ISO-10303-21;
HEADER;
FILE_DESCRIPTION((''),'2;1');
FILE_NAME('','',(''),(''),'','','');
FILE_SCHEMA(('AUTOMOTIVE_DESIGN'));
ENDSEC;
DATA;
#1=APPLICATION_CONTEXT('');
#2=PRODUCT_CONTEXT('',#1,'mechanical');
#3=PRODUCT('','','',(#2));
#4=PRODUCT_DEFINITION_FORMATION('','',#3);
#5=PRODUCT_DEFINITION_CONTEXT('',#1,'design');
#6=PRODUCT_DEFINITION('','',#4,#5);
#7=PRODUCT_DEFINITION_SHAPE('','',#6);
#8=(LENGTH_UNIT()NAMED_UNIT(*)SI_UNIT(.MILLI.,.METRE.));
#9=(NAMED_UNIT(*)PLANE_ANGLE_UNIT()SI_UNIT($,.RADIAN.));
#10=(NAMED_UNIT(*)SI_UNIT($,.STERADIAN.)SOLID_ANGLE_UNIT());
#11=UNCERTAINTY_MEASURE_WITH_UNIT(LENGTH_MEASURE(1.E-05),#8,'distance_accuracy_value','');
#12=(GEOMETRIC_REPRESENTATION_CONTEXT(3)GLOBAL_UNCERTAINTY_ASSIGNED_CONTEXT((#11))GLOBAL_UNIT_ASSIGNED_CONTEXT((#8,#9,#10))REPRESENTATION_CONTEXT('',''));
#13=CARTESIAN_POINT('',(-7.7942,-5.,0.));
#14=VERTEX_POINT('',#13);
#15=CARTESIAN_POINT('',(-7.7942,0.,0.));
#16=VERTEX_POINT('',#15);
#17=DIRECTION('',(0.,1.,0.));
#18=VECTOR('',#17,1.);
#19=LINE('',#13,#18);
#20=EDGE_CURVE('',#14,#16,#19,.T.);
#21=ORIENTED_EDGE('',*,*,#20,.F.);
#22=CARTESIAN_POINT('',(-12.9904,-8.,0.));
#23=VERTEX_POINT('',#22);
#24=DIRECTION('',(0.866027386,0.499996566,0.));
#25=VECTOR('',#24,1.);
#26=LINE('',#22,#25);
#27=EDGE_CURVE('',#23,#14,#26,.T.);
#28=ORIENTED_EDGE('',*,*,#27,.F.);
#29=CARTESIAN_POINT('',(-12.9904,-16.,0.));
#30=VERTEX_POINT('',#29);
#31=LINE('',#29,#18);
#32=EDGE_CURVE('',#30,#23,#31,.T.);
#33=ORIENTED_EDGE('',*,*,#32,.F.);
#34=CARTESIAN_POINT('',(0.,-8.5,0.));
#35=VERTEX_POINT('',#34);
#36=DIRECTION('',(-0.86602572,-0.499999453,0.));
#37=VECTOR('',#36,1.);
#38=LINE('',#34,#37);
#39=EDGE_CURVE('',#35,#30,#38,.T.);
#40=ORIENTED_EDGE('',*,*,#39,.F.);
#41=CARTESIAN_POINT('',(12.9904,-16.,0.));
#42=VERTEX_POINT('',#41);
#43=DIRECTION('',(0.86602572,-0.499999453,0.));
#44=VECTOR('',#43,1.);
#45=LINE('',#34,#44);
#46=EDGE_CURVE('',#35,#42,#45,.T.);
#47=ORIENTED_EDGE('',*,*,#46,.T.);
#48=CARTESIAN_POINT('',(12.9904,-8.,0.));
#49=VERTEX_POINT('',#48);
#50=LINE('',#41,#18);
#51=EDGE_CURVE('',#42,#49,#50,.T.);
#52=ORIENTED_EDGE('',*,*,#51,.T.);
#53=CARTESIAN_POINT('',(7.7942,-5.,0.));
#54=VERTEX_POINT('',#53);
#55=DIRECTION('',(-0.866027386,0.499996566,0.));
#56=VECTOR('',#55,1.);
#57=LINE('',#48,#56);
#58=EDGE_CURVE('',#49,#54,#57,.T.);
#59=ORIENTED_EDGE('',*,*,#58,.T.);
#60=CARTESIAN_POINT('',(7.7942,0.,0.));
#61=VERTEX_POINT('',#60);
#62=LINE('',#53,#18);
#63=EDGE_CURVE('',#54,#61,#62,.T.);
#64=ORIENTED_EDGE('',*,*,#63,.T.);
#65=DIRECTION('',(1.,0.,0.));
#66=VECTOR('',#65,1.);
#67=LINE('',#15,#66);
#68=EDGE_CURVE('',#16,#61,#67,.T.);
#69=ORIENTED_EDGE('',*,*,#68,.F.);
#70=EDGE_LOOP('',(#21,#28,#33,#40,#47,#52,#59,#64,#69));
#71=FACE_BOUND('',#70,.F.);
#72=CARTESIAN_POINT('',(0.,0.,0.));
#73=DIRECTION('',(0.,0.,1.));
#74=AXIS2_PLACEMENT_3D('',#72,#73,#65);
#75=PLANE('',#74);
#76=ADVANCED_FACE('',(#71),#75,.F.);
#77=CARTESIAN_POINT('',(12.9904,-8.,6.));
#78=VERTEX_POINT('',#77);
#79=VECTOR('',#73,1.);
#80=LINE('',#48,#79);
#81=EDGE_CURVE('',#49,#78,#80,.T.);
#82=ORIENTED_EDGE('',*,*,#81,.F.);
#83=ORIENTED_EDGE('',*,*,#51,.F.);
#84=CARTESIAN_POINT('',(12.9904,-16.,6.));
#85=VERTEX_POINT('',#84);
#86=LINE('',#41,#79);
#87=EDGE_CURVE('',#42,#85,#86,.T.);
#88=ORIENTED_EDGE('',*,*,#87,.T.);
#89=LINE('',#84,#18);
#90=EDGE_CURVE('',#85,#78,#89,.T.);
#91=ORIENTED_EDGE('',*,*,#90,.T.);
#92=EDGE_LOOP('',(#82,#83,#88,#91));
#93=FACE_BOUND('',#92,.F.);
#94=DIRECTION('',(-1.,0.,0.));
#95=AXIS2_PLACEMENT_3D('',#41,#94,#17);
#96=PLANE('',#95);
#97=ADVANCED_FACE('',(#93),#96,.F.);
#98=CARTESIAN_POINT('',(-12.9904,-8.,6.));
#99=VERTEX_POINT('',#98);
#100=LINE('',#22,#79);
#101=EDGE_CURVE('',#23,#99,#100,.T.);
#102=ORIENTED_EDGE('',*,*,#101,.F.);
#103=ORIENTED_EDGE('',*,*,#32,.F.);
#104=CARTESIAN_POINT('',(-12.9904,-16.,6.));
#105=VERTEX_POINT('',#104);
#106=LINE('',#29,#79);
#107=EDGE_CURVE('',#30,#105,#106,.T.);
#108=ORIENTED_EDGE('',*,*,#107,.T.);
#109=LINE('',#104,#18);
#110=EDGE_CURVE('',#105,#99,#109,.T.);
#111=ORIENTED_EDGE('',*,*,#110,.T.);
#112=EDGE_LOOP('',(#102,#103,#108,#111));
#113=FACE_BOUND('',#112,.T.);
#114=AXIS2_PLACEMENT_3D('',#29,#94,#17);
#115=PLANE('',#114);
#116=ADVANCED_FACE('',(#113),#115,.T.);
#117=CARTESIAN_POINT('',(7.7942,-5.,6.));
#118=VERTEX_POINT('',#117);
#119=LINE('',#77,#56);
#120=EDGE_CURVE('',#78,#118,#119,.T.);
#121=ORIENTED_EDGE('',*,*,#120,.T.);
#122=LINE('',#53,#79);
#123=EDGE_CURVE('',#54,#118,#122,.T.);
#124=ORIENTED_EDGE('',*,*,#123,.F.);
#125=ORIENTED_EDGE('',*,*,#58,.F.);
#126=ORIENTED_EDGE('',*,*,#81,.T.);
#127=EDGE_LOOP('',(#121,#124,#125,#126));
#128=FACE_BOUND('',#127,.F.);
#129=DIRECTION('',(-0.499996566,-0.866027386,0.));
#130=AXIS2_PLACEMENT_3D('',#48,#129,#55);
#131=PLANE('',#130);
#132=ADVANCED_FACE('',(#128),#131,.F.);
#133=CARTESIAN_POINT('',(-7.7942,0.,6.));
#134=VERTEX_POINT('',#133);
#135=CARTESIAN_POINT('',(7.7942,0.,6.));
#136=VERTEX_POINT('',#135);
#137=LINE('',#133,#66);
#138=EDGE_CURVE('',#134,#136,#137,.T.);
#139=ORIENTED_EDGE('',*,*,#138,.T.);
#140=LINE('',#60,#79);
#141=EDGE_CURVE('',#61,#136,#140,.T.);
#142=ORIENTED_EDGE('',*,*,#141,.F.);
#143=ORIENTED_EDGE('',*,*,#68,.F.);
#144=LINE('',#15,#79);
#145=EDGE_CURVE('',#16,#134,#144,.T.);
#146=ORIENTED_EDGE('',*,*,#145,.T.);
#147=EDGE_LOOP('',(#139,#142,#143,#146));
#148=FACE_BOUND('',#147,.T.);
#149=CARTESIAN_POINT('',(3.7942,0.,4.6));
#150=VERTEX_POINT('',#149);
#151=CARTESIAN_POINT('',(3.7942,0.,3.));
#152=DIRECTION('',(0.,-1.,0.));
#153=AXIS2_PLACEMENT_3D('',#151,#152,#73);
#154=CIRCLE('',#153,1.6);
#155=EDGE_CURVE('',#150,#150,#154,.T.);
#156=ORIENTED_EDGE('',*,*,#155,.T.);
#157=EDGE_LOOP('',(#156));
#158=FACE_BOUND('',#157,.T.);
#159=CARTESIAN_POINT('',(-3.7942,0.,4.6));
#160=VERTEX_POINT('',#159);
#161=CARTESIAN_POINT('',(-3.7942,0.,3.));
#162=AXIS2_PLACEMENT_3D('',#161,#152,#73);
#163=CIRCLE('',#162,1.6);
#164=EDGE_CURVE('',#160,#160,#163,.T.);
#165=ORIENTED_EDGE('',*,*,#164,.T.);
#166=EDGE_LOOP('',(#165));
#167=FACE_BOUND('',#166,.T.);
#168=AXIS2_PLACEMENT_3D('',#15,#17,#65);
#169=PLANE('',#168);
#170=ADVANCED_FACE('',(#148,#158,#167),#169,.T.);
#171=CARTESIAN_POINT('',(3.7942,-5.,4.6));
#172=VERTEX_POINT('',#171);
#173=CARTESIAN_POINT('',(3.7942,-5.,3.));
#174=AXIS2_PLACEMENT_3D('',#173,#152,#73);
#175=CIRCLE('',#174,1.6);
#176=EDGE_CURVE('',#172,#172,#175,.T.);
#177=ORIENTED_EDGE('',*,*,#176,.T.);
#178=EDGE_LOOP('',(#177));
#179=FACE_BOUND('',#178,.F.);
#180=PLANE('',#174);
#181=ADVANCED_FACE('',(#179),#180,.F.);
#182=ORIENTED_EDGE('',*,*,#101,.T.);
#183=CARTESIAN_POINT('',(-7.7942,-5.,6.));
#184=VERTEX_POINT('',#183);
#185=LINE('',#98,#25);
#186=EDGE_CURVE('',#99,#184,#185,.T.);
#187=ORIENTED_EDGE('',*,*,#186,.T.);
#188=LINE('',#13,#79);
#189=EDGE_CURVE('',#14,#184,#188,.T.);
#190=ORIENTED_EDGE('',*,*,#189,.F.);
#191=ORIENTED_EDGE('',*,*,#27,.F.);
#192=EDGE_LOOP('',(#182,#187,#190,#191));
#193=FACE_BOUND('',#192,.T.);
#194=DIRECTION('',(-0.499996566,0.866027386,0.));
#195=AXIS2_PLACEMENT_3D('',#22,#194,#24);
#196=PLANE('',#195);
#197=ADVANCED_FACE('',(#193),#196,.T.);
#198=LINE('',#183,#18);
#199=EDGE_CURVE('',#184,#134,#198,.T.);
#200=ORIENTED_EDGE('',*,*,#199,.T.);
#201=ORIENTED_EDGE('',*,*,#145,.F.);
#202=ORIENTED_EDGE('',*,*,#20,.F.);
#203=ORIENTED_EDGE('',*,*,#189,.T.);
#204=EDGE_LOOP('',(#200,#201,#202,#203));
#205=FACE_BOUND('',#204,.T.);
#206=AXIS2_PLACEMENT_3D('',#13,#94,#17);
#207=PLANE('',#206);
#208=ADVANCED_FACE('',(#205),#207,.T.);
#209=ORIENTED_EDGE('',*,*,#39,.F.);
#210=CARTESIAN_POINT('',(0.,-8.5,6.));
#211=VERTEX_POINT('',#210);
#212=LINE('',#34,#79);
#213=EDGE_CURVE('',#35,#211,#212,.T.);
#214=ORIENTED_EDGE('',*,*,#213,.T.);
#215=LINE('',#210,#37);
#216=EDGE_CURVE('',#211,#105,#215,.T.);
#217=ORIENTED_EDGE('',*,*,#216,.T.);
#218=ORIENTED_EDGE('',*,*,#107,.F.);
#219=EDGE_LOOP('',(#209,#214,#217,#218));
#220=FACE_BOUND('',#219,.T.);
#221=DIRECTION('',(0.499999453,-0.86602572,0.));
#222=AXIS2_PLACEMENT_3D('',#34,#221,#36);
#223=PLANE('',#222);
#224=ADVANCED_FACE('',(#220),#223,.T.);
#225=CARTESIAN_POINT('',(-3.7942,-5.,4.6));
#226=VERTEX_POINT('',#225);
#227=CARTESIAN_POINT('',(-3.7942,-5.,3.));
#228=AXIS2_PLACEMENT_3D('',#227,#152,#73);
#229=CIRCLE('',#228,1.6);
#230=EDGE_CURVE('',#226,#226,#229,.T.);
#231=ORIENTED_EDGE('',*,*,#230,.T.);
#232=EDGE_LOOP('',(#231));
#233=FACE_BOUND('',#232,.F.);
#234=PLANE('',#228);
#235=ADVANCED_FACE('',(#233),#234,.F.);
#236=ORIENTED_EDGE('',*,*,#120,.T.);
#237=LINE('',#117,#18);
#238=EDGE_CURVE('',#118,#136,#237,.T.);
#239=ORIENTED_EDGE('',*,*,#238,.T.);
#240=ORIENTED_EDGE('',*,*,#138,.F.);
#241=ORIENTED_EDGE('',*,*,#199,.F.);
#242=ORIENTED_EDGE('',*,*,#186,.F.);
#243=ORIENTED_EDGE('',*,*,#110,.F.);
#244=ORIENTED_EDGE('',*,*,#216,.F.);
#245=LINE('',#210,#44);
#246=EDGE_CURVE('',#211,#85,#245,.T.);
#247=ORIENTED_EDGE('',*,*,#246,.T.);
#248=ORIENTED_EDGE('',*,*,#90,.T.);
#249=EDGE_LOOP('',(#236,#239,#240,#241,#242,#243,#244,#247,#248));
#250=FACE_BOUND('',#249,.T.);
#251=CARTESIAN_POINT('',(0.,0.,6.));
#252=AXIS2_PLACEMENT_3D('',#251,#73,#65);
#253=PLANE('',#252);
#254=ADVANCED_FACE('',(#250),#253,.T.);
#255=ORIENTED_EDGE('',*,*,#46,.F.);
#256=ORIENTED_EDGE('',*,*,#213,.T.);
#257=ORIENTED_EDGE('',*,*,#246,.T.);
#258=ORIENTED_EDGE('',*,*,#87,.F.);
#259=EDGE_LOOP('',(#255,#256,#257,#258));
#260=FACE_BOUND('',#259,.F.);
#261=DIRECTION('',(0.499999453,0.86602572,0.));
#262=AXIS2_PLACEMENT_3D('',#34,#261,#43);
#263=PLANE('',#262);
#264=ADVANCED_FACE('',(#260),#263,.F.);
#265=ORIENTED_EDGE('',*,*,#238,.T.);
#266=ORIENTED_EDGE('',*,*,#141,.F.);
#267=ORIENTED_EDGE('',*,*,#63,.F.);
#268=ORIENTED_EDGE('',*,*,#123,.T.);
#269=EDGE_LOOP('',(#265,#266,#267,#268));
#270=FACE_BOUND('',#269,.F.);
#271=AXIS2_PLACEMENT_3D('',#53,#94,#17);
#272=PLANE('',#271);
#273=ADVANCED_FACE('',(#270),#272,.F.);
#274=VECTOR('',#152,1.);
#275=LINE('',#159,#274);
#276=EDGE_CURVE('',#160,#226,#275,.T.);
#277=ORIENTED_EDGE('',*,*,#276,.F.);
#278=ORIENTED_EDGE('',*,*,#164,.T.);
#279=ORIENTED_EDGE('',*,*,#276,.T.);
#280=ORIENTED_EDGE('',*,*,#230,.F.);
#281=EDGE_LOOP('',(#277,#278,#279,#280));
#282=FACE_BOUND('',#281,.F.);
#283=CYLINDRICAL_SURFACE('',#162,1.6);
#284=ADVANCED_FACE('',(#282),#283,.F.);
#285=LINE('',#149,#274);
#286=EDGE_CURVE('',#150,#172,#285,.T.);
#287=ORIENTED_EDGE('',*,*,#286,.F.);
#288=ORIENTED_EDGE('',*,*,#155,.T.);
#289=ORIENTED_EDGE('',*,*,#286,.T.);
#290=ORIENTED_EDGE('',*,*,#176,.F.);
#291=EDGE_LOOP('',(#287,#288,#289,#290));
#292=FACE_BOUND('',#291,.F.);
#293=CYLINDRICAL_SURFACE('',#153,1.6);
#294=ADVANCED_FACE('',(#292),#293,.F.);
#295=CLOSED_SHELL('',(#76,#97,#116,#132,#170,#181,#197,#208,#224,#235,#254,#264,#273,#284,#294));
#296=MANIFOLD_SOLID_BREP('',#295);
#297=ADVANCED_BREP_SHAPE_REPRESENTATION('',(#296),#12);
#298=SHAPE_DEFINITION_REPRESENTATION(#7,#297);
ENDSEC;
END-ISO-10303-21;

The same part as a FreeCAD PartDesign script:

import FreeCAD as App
import Part
import Sketcher

V = App.Vector
Q = App.Units.Quantity


def add_polygon(sketch, points):
    """Adds a closed chain of lines whose ends are joined by coincident constraints."""
    first, n = sketch.GeometryCount, len(points)
    for a, b in zip(points, points[1:] + points[:1]):
        sketch.addGeometry(Part.LineSegment(App.Vector(*a, 0), App.Vector(*b, 0)), False)
    for i in range(n):
        sketch.addConstraint(Sketcher.Constraint("Coincident", first + i, 2, first + (i + 1) % n, 1))

doc = App.newDocument("Part")
params = doc.addObject("Spreadsheet::Sheet", "Params")
for row, (alias, value) in enumerate([
    ("sketch1_height", "8 mm"),
    ("sketch1_height2", "5 mm"),
    ("sketch1_length", "15 mm"),
    ("sketch1_length2", "6 mm"),
    ("pad1_length", "6 mm"),
    ("sketch2_diameter", "3.2 mm"),
    ("hole_diameter", "3.2 mm"),
    ("hole_depth", "5 mm"),
], start=1):
    params.set(f"A{row}", alias)
    params.set(f"B{row}", "=" + value)
    params.setAlias(f"B{row}", alias)

body = doc.addObject("PartDesign::Body", "Body")

# Sketch on XY plane
sketch1 = body.newObject("Sketcher::SketchObject", "Sketch")
sketch1.AttachmentSupport = (doc.getObject("XY_Plane"), [""])
sketch1.MapMode = "FlatFace"
add_polygon(sketch1, [(-13, -16), (0, -8), (13, -16), (13, -8), (8, -5), (8, 0), (-8, 0), (-8, -5), (-13, -8)])  # lines 0-8
sketch1.addConstraint([
    Sketcher.Constraint("Vertical", 2),
    Sketcher.Constraint("Vertical", 4),
    Sketcher.Constraint("Horizontal", 5),
    Sketcher.Constraint("Vertical", 6),
    Sketcher.Constraint("Vertical", 8),
    Sketcher.Constraint("Symmetric", 4, 2, 5, 2, -1, 1),
    Sketcher.Constraint("Symmetric", 2, 2, 7, 2, -2),
    Sketcher.Constraint("PointOnObject", 0, 2, -2),
    Sketcher.Constraint("Parallel", 1, 3),
    Sketcher.Constraint("Parallel", 0, 7),
    Sketcher.Constraint("Horizontal", 3, 2, 6, 2),
    Sketcher.Constraint("DistanceY", 2, 1, 2, 2, 8.0),
    Sketcher.Constraint("DistanceY", 4, 1, 4, 2, 5.0),
    Sketcher.Constraint("Angle", 0, Q("30 deg")),
    Sketcher.Constraint("Distance", 0, 15.0),
    Sketcher.Constraint("Distance", 3, 6.0),
])
sketch1.setExpression("Constraints[20]", "Params.sketch1_height")
sketch1.setExpression("Constraints[21]", "Params.sketch1_height2")
sketch1.setExpression("Constraints[23]", "Params.sketch1_length")
sketch1.setExpression("Constraints[24]", "Params.sketch1_length2")
pad1 = body.newObject("PartDesign::Pad", "Pad")
pad1.Profile = sketch1
pad1.setExpression("Length", "Params.pad1_length")

# Sketch on XZ plane
sketch2 = body.newObject("Sketcher::SketchObject", "Sketch001")
sketch2.AttachmentSupport = (doc.getObject("XZ_Plane"), [""])
sketch2.MapMode = "FlatFace"
sketch2.addGeometry([
    Part.Circle(V(3.8, 3, 0), V(0, 0, 1), 1.6),
    Part.Circle(V(-3.8, 3, 0), V(0, 0, 1), 1.6),
], False)
sketch2.addConstraint([
    Sketcher.Constraint("Equal", 0, 1),
    Sketcher.Constraint("Symmetric", 0, 3, 1, 3, -2),
    Sketcher.Constraint("Diameter", 0, 3.2),
    Sketcher.Constraint("DistanceY", -1, 1, 0, 3, 3.0),
    Sketcher.Constraint("DistanceX", -1, 1, 0, 3, 3.7942),
])
sketch2.setExpression("Constraints[2]", "Params.sketch2_diameter")
doc.recompute()
hole = body.newObject("PartDesign::Hole", "Hole")
hole.Profile = sketch2
hole.ThreadType = "None"
hole.setExpression("Diameter", "Params.hole_diameter")
hole.DepthType = "Dimension"
hole.setExpression("Depth", "Params.hole_depth")
hole.DrillPoint = "Flat"
hole.Reversed = True

doc.recompute()
